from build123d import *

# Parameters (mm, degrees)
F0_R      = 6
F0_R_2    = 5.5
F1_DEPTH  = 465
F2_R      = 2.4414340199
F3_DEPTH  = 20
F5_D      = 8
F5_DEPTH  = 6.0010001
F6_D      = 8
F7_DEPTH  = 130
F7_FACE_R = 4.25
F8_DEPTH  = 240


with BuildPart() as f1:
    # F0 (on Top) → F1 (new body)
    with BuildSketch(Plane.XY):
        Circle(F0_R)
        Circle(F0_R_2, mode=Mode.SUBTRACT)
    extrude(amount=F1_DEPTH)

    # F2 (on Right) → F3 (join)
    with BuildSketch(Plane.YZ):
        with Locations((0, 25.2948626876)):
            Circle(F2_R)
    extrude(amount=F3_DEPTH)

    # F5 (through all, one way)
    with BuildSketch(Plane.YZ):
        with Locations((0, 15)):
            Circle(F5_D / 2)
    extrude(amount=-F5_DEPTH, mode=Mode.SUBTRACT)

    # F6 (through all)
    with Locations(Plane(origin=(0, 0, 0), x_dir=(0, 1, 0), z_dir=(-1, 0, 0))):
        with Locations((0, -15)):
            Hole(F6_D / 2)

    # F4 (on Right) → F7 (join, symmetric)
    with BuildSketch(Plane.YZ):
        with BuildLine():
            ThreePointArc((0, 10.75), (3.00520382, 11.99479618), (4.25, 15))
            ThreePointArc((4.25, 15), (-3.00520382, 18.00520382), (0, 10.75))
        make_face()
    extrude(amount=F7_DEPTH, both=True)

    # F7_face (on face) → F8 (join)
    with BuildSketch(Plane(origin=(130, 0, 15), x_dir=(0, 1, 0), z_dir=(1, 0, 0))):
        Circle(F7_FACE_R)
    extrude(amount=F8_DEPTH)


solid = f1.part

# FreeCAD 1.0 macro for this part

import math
import FreeCAD as App
import Part
import Sketcher
Q = App.Units.Quantity

doc = App.newDocument("Part")
body = doc.addObject("PartDesign::Body", "Body")

# Sketch on XY plane
sketch1 = body.newObject("Sketcher::SketchObject", "Sketch")
sketch1.AttachmentSupport = (doc.getObject("XY_Plane"), [""])
sketch1.MapMode = "FlatFace"
sketch1.addGeometry([
    Part.Circle(App.Vector(0, 0, 0), App.Vector(0, 0, 1), 6),
    Part.Circle(App.Vector(0, 0, 0), App.Vector(0, 0, 1), 6),
], False)
sketch1.addConstraint([
    Sketcher.Constraint("Coincident", 0, 3, -1, 1),
    Sketcher.Constraint("Coincident", 1, 3, -1, 1),
    Sketcher.Constraint("Diameter", 0, Q("12 mm")),
    Sketcher.Constraint("Diameter", 1, Q("11 mm")),
])
pad1 = body.newObject("PartDesign::Pad", "Pad")
pad1.Profile = sketch1
pad1.Length = 465

# Sketch on YZ plane
sketch2 = body.newObject("Sketcher::SketchObject", "Sketch001")
sketch2.AttachmentSupport = (doc.getObject("YZ_Plane"), [""])
sketch2.MapMode = "FlatFace"
sketch2.addGeometry(Part.Circle(App.Vector(0, 25.3, 0), App.Vector(0, 0, 1), 2.4), False)
sketch2.addConstraint([
    Sketcher.Constraint("PointOnObject", 0, 3, -2),
    Sketcher.Constraint("Diameter", 0, Q("4.882868 mm")),
    Sketcher.Constraint("DistanceY", -1, 1, 0, 3, Q("25.294863 mm")),
])
pad2 = body.newObject("PartDesign::Pad", "Pad001")
pad2.Profile = sketch2
pad2.Length = 20

# Sketch on YZ plane
sketch3 = body.newObject("Sketcher::SketchObject", "Sketch002")
sketch3.AttachmentSupport = (doc.getObject("YZ_Plane"), [""])
sketch3.MapMode = "FlatFace"
sketch3.addGeometry(Part.Circle(App.Vector(0, 15, 0), App.Vector(0, 0, 1), 4), False)
sketch3.addConstraint([
    Sketcher.Constraint("PointOnObject", 0, 3, -2),
    Sketcher.Constraint("Diameter", 0, Q("8 mm")),
    Sketcher.Constraint("DistanceY", -1, 1, 0, 3, Q("15 mm")),
])
pocket1 = body.newObject("PartDesign::Pocket", "Pocket")
pocket1.Profile = sketch3
pocket1.Type = "ThroughAll"

# Sketch on YZ plane
sketch4 = body.newObject("Sketcher::SketchObject", "Sketch003")
sketch4.AttachmentSupport = (doc.getObject("YZ_Plane"), [""])
sketch4.MapMode = "FlatFace"
sketch4.addGeometry(Part.Circle(App.Vector(0, 15, 0), App.Vector(0, 0, 1), 4), False)
sketch4.addConstraint([
    Sketcher.Constraint("PointOnObject", 0, 3, -2),
    Sketcher.Constraint("Diameter", 0, Q("8 mm")),
    Sketcher.Constraint("DistanceY", -1, 1, 0, 3, Q("15 mm")),
])
doc.recompute()
hole = body.newObject("PartDesign::Hole", "Hole")
hole.Profile = sketch4
hole.ThreadType = "None"
hole.Diameter = 8
hole.DepthType = "ThroughAll"
hole.Reversed = True

# Sketch on YZ plane
sketch5 = body.newObject("Sketcher::SketchObject", "Sketch004")
sketch5.AttachmentSupport = (doc.getObject("YZ_Plane"), [""])
sketch5.MapMode = "FlatFace"
sketch5.addGeometry([
    Part.ArcOfCircle(Part.Circle(App.Vector(0, 15, 0), App.Vector(0, 0, 1), 4.2), math.radians(-90), math.radians(0)),
    Part.ArcOfCircle(Part.Circle(App.Vector(0, 15, 0), App.Vector(0, 0, 1), 4.2), math.radians(0), math.radians(270)),
], False)
sketch5.addConstraint([
    Sketcher.Constraint("Tangent", 0, 1, 1, 2),
    Sketcher.Constraint("Coincident", 1, 1, 0, 2),
    Sketcher.Constraint("PointOnObject", 0, 3, -2),
    Sketcher.Constraint("PointOnObject", 0, 1, -2),
    Sketcher.Constraint("Horizontal", 0, 3, 1, 1),
    Sketcher.Constraint("Radius", 0, Q("4.25 mm")),
    Sketcher.Constraint("DistanceY", -1, 1, 0, 3, Q("15 mm")),
])
pad3 = body.newObject("PartDesign::Pad", "Pad002")
pad3.Profile = sketch5
pad3.Length = 260
pad3.Midplane = True

# Sketch on YZ plane
sketch6 = body.newObject("Sketcher::SketchObject", "Sketch005")
sketch6.AttachmentSupport = (doc.getObject("YZ_Plane"), [""])
sketch6.MapMode = "FlatFace"
sketch6.AttachmentOffset = App.Placement(App.Vector(0, 0, 130), App.Rotation())
sketch6.addGeometry(Part.Circle(App.Vector(0, 15, 0), App.Vector(0, 0, 1), 4.2), False)
sketch6.addConstraint([
    Sketcher.Constraint("PointOnObject", 0, 3, -2),
    Sketcher.Constraint("Diameter", 0, Q("8.5 mm")),
    Sketcher.Constraint("DistanceY", -1, 1, 0, 3, Q("15 mm")),
])
pad4 = body.newObject("PartDesign::Pad", "Pad003")
pad4.Profile = sketch6
pad4.Length = 240

doc.recompute()
